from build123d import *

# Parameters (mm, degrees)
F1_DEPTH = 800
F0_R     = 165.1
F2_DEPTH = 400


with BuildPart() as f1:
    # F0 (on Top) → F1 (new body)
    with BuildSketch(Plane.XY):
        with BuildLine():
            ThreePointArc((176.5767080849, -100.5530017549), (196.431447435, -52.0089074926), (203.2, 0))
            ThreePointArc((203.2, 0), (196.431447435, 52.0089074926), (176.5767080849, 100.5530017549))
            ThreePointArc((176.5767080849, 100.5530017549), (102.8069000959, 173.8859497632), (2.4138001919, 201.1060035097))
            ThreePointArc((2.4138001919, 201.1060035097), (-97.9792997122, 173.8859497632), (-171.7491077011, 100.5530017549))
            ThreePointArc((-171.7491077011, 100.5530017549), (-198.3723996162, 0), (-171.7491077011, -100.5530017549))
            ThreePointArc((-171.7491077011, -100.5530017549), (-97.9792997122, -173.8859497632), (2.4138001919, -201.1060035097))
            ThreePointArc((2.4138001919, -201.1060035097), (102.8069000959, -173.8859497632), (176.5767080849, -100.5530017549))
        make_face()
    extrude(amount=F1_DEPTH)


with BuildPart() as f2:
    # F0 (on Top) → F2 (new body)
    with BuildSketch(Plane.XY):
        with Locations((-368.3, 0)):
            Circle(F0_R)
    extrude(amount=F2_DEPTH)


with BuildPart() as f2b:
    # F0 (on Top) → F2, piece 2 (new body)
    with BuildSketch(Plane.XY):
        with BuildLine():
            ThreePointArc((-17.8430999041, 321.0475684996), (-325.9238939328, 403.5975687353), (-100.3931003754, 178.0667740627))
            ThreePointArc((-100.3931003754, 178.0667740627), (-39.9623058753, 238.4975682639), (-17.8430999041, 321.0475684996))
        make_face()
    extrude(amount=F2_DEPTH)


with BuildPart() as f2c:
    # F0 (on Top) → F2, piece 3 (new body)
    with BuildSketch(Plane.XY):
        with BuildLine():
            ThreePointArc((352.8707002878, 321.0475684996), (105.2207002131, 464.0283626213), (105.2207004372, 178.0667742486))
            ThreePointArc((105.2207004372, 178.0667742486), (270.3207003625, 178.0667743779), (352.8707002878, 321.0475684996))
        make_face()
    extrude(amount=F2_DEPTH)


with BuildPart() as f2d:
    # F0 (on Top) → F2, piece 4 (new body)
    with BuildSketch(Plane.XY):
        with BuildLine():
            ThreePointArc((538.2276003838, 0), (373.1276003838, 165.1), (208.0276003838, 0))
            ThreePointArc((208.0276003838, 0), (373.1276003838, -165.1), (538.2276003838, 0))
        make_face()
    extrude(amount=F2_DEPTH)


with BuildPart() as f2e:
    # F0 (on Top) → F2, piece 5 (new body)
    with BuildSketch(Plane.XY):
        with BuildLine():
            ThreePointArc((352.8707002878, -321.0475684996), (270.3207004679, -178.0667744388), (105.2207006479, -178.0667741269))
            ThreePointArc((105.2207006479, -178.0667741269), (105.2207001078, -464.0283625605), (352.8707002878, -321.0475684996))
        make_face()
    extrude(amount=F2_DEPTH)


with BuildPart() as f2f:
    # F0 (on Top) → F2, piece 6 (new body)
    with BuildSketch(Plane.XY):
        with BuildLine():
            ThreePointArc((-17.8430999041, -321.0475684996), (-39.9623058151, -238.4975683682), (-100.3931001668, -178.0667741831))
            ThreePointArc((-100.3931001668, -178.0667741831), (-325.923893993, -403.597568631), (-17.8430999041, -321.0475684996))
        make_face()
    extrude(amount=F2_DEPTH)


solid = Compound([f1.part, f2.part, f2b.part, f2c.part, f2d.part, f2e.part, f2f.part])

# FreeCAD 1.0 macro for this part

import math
import FreeCAD as App
import Part
import Sketcher
Q = App.Units.Quantity

doc = App.newDocument("Part")
body = doc.addObject("PartDesign::Body", "Body")

# Sketch on XY plane
sketch1 = doc.addObject("Sketcher::SketchObject", "Sketch")
body.addObject(sketch1)
sketch1.AttachmentSupport = (doc.XY_Plane, [""])
sketch1.MapMode = "FlatFace"
sketch1.addGeometry(Part.ArcOfCircle(Part.Circle(App.Vector(0, 0, 0), App.Vector(0, 0, 1), 203.2), math.radians(-29.659691), math.radians(0)), False)
sketch1.addGeometry(Part.ArcOfCircle(Part.Circle(App.Vector(0, 0, 0), App.Vector(0, 0, 1), 203.2), math.radians(0), math.radians(29.659691)), False)
sketch1.addGeometry(Part.ArcOfCircle(Part.Circle(App.Vector(1.2069, -2.090412, 0), App.Vector(0, 0, 1), 203.2), math.radians(30.340309), math.radians(89.659691)), False)
sketch1.addGeometry(Part.ArcOfCircle(Part.Circle(App.Vector(3.6207, -2.090412, 0), App.Vector(0, 0, 1), 203.2), math.radians(90.340309), math.radians(149.659691)), False)
sketch1.addGeometry(Part.ArcOfCircle(Part.Circle(App.Vector(4.8276, 0, 0), App.Vector(0, 0, 1), 203.2), math.radians(150.340309), math.radians(209.659691)), False)
sketch1.addGeometry(Part.ArcOfCircle(Part.Circle(App.Vector(3.6207, 2.090412, 0), App.Vector(0, 0, 1), 203.2), math.radians(-149.659691), math.radians(-90.340309)), False)
sketch1.addGeometry(Part.ArcOfCircle(Part.Circle(App.Vector(1.2069, 2.090412, 0), App.Vector(0, 0, 1), 203.2), math.radians(-89.659691), math.radians(-30.340309)), False)
sketch1.addConstraint(Sketcher.Constraint("Tangent", 0, 2, 1, 1))
sketch1.addConstraint(Sketcher.Constraint("Coincident", 1, 2, 2, 1))
sketch1.addConstraint(Sketcher.Constraint("Coincident", 2, 2, 3, 1))
sketch1.addConstraint(Sketcher.Constraint("Coincident", 3, 2, 4, 1))
sketch1.addConstraint(Sketcher.Constraint("Coincident", 4, 2, 5, 1))
sketch1.addConstraint(Sketcher.Constraint("Coincident", 5, 2, 6, 1))
sketch1.addConstraint(Sketcher.Constraint("Coincident", 6, 2, 0, 1))
sketch1.addConstraint(Sketcher.Constraint("Coincident", 0, 3, -1, 1))
sketch1.addConstraint(Sketcher.Constraint("Equal", 0, 1))
sketch1.addConstraint(Sketcher.Constraint("Equal", 1, 2))
sketch1.addConstraint(Sketcher.Constraint("Equal", 2, 3))
sketch1.addConstraint(Sketcher.Constraint("Equal", 3, 4))
sketch1.addConstraint(Sketcher.Constraint("Equal", 4, 5))
sketch1.addConstraint(Sketcher.Constraint("Equal", 5, 6))
sketch1.addConstraint(Sketcher.Constraint("Symmetric", 3, 3, 5, 3, -1))
sketch1.addConstraint(Sketcher.Constraint("Symmetric", 2, 3, 6, 3, -1))
sketch1.addConstraint(Sketcher.Constraint("PointOnObject", 4, 3, -1))
sketch1.addConstraint(Sketcher.Constraint("PointOnObject", 0, 2, -1))
sketch1.addConstraint(Sketcher.Constraint("Horizontal", 2, 3, 3, 3))
sketch1.addConstraint(Sketcher.Constraint("Horizontal", 1, 2, 3, 2))
sketch1.addConstraint(Sketcher.Constraint("Radius", 0, Q("203.2 mm")))
sketch1.addConstraint(Sketcher.Constraint("DistanceY", -1, 1, 1, 2, Q("100.553002 mm")))
sketch1.addConstraint(Sketcher.Constraint("DistanceY", 1, 2, 2, 2, Q("100.553002 mm")))
sketch1.addConstraint(Sketcher.Constraint("DistanceX", -1, 1, 3, 3, Q("3.6207 mm")))
pad1 = doc.addObject("PartDesign::Pad", "Pad")
body.addObject(pad1)
pad1.Profile = sketch1
pad1.Length = 800
body2 = doc.addObject("PartDesign::Body", "Body001")

# Sketch on XY plane
sketch2 = doc.addObject("Sketcher::SketchObject", "Sketch001")
body2.addObject(sketch2)
sketch2.AttachmentSupport = (doc.getObject("XY_Plane001"), [""])
sketch2.MapMode = "FlatFace"
sketch2.addGeometry(Part.Circle(App.Vector(-368, 0, 0), App.Vector(0, 0, 1), 165), False)
sketch2.addConstraint(Sketcher.Constraint("PointOnObject", 0, 3, -1))
sketch2.addConstraint(Sketcher.Constraint("Diameter", 0, Q("330.2 mm")))
sketch2.addConstraint(Sketcher.Constraint("DistanceX", 0, 3, -1, 1, Q("368.3 mm")))
pad2 = doc.addObject("PartDesign::Pad", "Pad001")
body2.addObject(pad2)
pad2.Profile = sketch2
pad2.Length = 400
body3 = doc.addObject("PartDesign::Body", "Body002")

# Sketch on XY plane
sketch3 = doc.addObject("Sketcher::SketchObject", "Sketch002")
body3.addObject(sketch3)
sketch3.AttachmentSupport = (doc.getObject("XY_Plane002"), [""])
sketch3.MapMode = "FlatFace"
sketch3.addGeometry(Part.ArcOfCircle(Part.Circle(App.Vector(-183, 321, 0), App.Vector(0, 0, 1), 165), math.radians(0), math.radians(300)), False)
sketch3.addGeometry(Part.ArcOfCircle(Part.Circle(App.Vector(-183, 321, 0), App.Vector(0, 0, 1), 165), math.radians(-60), math.radians(0)), False)
sketch3.addConstraint(Sketcher.Constraint("Tangent", 0, 1, 1, 2))
sketch3.addConstraint(Sketcher.Constraint("Coincident", 1, 1, 0, 2))
sketch3.addConstraint(Sketcher.Constraint("Horizontal", 1, 3, 0, 1))
sketch3.addConstraint(Sketcher.Constraint("Radius", 0, Q("165.1 mm")))
sketch3.addConstraint(Sketcher.Constraint("DistanceX", 1, 3, 1, 1, Q("82.55 mm")))
sketch3.addConstraint(Sketcher.Constraint("DistanceX", 0, 3, -1, 1, Q("182.9431 mm")))
sketch3.addConstraint(Sketcher.Constraint("DistanceY", -1, 1, 0, 3, Q("321.047569 mm")))
pad3 = doc.addObject("PartDesign::Pad", "Pad002")
body3.addObject(pad3)
pad3.Profile = sketch3
pad3.Length = 400
body4 = doc.addObject("PartDesign::Body", "Body003")

# Sketch on XY plane
sketch4 = doc.addObject("Sketcher::SketchObject", "Sketch003")
body4.addObject(sketch4)
sketch4.AttachmentSupport = (doc.getObject("XY_Plane003"), [""])
sketch4.MapMode = "FlatFace"
sketch4.addGeometry(Part.Circle(App.Vector(188, 321, 0), App.Vector(0, 0, 1), 165), False)
sketch4.addConstraint(Sketcher.Constraint("Diameter", 0, Q("330.2 mm")))
sketch4.addConstraint(Sketcher.Constraint("DistanceX", -1, 1, 0, 3, Q("187.7707 mm")))
sketch4.addConstraint(Sketcher.Constraint("DistanceY", -1, 1, 0, 3, Q("321.047569 mm")))
pad4 = doc.addObject("PartDesign::Pad", "Pad003")
body4.addObject(pad4)
pad4.Profile = sketch4
pad4.Length = 400
body5 = doc.addObject("PartDesign::Body", "Body004")

# Sketch on XY plane
sketch5 = doc.addObject("Sketcher::SketchObject", "Sketch004")
body5.addObject(sketch5)
sketch5.AttachmentSupport = (doc.getObject("XY_Plane004"), [""])
sketch5.MapMode = "FlatFace"
sketch5.addGeometry(Part.Circle(App.Vector(373, 0, 0), App.Vector(0, 0, 1), 165), False)
sketch5.addConstraint(Sketcher.Constraint("PointOnObject", 0, 3, -1))
sketch5.addConstraint(Sketcher.Constraint("Diameter", 0, Q("330.2 mm")))
sketch5.addConstraint(Sketcher.Constraint("DistanceX", -1, 1, 0, 3, Q("373.1276 mm")))
pad5 = doc.addObject("PartDesign::Pad", "Pad004")
body5.addObject(pad5)
pad5.Profile = sketch5
pad5.Length = 400
body6 = doc.addObject("PartDesign::Body", "Body005")

# Sketch on XY plane
sketch6 = doc.addObject("Sketcher::SketchObject", "Sketch005")
body6.addObject(sketch6)
sketch6.AttachmentSupport = (doc.getObject("XY_Plane005"), [""])
sketch6.MapMode = "FlatFace"
sketch6.addGeometry(Part.Circle(App.Vector(188, -321, 0), App.Vector(0, 0, 1), 165), False)
sketch6.addConstraint(Sketcher.Constraint("Diameter", 0, Q("330.2 mm")))
sketch6.addConstraint(Sketcher.Constraint("DistanceX", -1, 1, 0, 3, Q("187.7707 mm")))
sketch6.addConstraint(Sketcher.Constraint("DistanceY", 0, 3, -1, 1, Q("321.047569 mm")))
pad6 = doc.addObject("PartDesign::Pad", "Pad005")
body6.addObject(pad6)
pad6.Profile = sketch6
pad6.Length = 400
body7 = doc.addObject("PartDesign::Body", "Body006")

# Sketch on XY plane
sketch7 = doc.addObject("Sketcher::SketchObject", "Sketch006")
body7.addObject(sketch7)
sketch7.AttachmentSupport = (doc.getObject("XY_Plane006"), [""])
sketch7.MapMode = "FlatFace"
sketch7.addGeometry(Part.Circle(App.Vector(-183, -321, 0), App.Vector(0, 0, 1), 165), False)
sketch7.addConstraint(Sketcher.Constraint("Diameter", 0, Q("330.2 mm")))
sketch7.addConstraint(Sketcher.Constraint("DistanceX", 0, 3, -1, 1, Q("182.9431 mm")))
sketch7.addConstraint(Sketcher.Constraint("DistanceY", 0, 3, -1, 1, Q("321.047569 mm")))
pad7 = doc.addObject("PartDesign::Pad", "Pad006")
body7.addObject(pad7)
pad7.Profile = sketch7
pad7.Length = 400

doc.recompute()
